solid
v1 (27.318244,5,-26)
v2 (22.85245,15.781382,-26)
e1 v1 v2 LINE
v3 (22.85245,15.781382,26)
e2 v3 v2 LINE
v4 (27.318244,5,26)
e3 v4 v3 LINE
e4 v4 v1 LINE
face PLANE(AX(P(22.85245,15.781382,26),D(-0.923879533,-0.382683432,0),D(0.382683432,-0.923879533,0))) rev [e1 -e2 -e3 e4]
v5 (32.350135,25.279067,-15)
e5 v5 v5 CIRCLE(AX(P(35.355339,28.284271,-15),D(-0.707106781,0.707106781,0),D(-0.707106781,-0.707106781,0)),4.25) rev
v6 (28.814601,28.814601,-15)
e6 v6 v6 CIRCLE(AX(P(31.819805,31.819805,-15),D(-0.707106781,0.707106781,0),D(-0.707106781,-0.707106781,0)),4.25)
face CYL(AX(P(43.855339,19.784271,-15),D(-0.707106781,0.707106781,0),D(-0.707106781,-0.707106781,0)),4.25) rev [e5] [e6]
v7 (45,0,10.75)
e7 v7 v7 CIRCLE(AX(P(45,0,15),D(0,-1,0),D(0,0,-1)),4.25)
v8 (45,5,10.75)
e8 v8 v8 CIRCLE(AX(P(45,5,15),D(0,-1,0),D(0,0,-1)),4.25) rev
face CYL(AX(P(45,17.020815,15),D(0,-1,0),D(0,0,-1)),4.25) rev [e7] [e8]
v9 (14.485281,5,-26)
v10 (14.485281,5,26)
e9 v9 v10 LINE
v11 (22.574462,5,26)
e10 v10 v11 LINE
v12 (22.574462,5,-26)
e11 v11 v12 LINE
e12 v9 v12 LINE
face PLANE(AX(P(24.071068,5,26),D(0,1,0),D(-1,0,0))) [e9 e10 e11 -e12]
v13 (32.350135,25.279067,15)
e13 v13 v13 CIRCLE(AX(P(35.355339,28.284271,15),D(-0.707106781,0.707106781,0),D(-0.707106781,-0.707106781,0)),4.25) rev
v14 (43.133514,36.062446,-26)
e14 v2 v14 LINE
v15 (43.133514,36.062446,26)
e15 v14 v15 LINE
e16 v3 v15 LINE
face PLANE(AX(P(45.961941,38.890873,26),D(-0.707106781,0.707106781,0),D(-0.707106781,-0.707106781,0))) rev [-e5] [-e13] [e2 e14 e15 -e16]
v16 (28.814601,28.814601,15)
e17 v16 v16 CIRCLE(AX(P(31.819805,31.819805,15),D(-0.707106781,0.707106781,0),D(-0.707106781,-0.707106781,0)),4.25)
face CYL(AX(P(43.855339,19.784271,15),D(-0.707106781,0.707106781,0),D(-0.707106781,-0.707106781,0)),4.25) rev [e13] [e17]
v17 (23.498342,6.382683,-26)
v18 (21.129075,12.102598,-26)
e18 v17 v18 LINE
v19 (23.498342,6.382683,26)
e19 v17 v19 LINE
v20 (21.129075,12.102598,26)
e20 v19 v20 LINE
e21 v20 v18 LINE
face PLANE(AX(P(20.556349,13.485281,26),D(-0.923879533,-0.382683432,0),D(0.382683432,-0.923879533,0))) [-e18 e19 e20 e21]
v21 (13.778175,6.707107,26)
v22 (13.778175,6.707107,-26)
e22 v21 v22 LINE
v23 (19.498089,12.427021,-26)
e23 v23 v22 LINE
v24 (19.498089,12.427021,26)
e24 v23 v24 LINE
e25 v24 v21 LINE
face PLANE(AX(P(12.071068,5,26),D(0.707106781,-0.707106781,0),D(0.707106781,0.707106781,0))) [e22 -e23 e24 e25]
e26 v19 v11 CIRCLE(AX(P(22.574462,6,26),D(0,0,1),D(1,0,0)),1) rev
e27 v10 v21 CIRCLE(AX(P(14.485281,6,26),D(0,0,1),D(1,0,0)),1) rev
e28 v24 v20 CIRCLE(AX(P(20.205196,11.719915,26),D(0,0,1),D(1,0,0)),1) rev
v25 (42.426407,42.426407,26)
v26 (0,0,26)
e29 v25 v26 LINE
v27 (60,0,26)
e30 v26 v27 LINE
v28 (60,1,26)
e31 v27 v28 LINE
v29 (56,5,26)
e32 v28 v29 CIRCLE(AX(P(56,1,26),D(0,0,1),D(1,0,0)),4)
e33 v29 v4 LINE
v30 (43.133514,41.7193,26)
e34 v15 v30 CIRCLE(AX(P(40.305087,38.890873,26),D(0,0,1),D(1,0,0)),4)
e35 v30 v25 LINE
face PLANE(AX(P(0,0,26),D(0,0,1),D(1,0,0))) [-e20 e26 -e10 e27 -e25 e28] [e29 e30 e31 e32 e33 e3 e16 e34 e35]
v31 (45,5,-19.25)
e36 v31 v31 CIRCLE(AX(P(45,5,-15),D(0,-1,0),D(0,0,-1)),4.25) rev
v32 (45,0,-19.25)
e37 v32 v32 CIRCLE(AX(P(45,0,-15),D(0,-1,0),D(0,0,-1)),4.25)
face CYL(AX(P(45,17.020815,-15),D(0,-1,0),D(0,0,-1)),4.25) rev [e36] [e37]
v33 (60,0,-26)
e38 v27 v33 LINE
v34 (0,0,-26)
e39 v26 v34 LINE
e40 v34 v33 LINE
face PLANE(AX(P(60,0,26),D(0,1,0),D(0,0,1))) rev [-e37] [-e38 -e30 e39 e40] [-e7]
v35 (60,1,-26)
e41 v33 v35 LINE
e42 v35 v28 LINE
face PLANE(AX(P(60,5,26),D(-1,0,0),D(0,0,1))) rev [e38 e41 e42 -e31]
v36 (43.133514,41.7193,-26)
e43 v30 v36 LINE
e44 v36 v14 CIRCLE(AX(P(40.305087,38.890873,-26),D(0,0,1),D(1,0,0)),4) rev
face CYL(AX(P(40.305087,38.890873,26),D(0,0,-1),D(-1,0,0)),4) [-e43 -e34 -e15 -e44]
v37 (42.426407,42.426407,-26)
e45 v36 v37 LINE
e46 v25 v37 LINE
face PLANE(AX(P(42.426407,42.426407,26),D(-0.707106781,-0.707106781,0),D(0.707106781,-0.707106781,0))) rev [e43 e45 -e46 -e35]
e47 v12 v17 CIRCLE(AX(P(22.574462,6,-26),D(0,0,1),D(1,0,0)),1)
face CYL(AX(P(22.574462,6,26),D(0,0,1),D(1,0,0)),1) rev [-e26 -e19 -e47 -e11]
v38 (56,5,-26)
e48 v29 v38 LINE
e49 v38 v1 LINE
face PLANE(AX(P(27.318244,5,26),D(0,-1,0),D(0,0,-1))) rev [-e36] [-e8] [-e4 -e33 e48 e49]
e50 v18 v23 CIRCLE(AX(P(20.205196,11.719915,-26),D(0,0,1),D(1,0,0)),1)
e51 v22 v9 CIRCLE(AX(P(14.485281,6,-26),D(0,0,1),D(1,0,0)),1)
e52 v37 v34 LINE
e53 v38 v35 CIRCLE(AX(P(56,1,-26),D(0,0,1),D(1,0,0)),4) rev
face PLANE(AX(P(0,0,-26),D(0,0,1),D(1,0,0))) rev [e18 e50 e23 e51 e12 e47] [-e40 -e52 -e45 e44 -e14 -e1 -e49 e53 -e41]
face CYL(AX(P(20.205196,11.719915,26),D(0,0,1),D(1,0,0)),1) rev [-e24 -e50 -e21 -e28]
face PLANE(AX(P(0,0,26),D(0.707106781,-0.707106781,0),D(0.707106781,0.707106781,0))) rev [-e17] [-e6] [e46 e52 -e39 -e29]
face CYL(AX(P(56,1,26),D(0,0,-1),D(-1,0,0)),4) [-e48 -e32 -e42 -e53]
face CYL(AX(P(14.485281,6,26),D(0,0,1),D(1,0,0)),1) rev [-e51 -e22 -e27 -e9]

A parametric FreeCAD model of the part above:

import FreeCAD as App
import Part
import Sketcher
Q = App.Units.Quantity


def edges_at(feature, points):
    """Names of the edges that pass closest to the given points."""
    edges = feature.Shape.Edges
    near = lambda p: min(range(len(edges)), key=lambda i: edges[i].distToShape(Part.Vertex(*p))[0])
    return sorted({f"Edge{near(p) + 1}" for p in points})


def add_polygon(sketch, points):
    """Adds a closed chain of lines whose ends are joined by coincident constraints."""
    first, n = sketch.GeometryCount, len(points)
    for a, b in zip(points, points[1:] + points[:1]):
        sketch.addGeometry(Part.LineSegment(App.Vector(*a, 0), App.Vector(*b, 0)), False)
    for i in range(n):
        sketch.addConstraint(Sketcher.Constraint("Coincident", first + i, 2, first + (i + 1) % n, 1))

doc = App.newDocument("Part")
body = doc.addObject("PartDesign::Body", "Body")

# Sketch on XY plane
sketch1 = doc.addObject("Sketcher::SketchObject", "Sketch")
body.addObject(sketch1)
sketch1.AttachmentSupport = (doc.XY_Plane, [""])
sketch1.MapMode = "FlatFace"
add_polygon(sketch1, [(42.426407, 42.426407), (0, 0), (60, 0), (60, 5), (27.318244, 5), (22.85245, 15.781382), (45.961941, 38.890873)])  # lines 0-6
add_polygon(sketch1, [(20.556349, 13.485281), (24.071068, 5), (12.071068, 5)])  # lines 7-9
sketch1.addConstraint([
    Sketcher.Constraint("Horizontal", 1),
    Sketcher.Constraint("Vertical", 2),
    Sketcher.Constraint("Horizontal", 3),
    Sketcher.Constraint("Horizontal", 8),
    Sketcher.Constraint("Coincident", 0, 2, -1, 1),
    Sketcher.Constraint("Parallel", 0, 5),
    Sketcher.Constraint("Perpendicular", 5, 6),
    Sketcher.Constraint("Parallel", 4, 7),
    Sketcher.Constraint("Perpendicular", 6, 9),
    Sketcher.Constraint("Horizontal", 3, 2, 7, 2),
    Sketcher.Constraint("DistanceX", 1, 1, 1, 2, 60.0),
    Sketcher.Constraint("DistanceX", 8, 2, 8, 1, 12.0),
    Sketcher.Constraint("DistanceY", 2, 1, 2, 2, 5.0),
    Sketcher.Constraint("Angle", 0, Q("-135 deg")),
    Sketcher.Constraint("Distance", 0, 60.0),
    Sketcher.Constraint("Distance", 6, 5.0),
    Sketcher.Constraint("Distance", 9, 12.0),
    Sketcher.Constraint("DistanceX", 9, 2, 4, 2, 2.296101),
    Sketcher.Constraint("DistanceY", 9, 2, 4, 2, 2.296101),
])
pad1 = doc.addObject("PartDesign::Pad", "Pad")
body.addObject(pad1)
pad1.Profile = sketch1
pad1.Length = 52
pad1.Midplane = True

# Sketch on an angled plane
sketch2 = doc.addObject("Sketcher::SketchObject", "Sketch001")
body.addObject(sketch2)
sketch2.Placement = App.Placement(App.Vector(0, 0, 0), App.Rotation(App.Vector(0, 0, 1), App.Vector(0.707106781, 0.707106781, 0), App.Vector(-0.707106781, 0.707106781, 0), "ZXY"))
sketch2.addGeometry([
    Part.Circle(App.Vector(-15, 45, 0), App.Vector(0, 0, 1), 4.25),
    Part.Circle(App.Vector(15, 45, 0), App.Vector(0, 0, 1), 4.25),
], False)
sketch2.addConstraint([
    Sketcher.Constraint("Equal", 0, 1),
    Sketcher.Constraint("Symmetric", 0, 3, 1, 3, -2),
    Sketcher.Constraint("Diameter", 0, 8.5),
    Sketcher.Constraint("DistanceX", 0, 3, -1, 1, 15.0),
    Sketcher.Constraint("DistanceY", -1, 1, 0, 3, 45.0),
])
pocket1 = doc.addObject("PartDesign::Pocket", "Pocket")
body.addObject(pocket1)
pocket1.Profile = sketch2
pocket1.Length = 5

# Sketch on XZ plane
sketch3 = doc.addObject("Sketcher::SketchObject", "Sketch002")
body.addObject(sketch3)
sketch3.AttachmentSupport = (doc.XZ_Plane, [""])
sketch3.MapMode = "FlatFace"
sketch3.addGeometry([
    Part.Circle(App.Vector(45, 15, 0), App.Vector(0, 0, 1), 4.25),
    Part.Circle(App.Vector(45, -15, 0), App.Vector(0, 0, 1), 4.25),
], False)
sketch3.addConstraint([
    Sketcher.Constraint("Equal", 0, 1),
    Sketcher.Constraint("Symmetric", 0, 3, 1, 3, -1),
    Sketcher.Constraint("Diameter", 0, 8.5),
    Sketcher.Constraint("DistanceX", -1, 1, 0, 3, 45.0),
    Sketcher.Constraint("DistanceY", -1, 1, 0, 3, 15.0),
])
pocket2 = doc.addObject("PartDesign::Pocket", "Pocket001")
body.addObject(pocket2)
pocket2.Profile = sketch3
pocket2.Length = 5
doc.recompute()

fillet = doc.addObject("PartDesign::Fillet", "Fillet")
body.addObject(fillet)
fillet.Base = (pocket2, edges_at(pocket2, [(45.962, 38.891, 0), (60, 5, 0)]))
fillet.Radius = 4
doc.recompute()

fillet2 = doc.addObject("PartDesign::Fillet", "Fillet001")
body.addObject(fillet2)
fillet2.Base = (fillet, edges_at(fillet, [(20.556, 13.485, 0), (12.071, 5, 0), (24.071, 5, 0)]))
fillet2.Radius = 1

doc.recompute()
